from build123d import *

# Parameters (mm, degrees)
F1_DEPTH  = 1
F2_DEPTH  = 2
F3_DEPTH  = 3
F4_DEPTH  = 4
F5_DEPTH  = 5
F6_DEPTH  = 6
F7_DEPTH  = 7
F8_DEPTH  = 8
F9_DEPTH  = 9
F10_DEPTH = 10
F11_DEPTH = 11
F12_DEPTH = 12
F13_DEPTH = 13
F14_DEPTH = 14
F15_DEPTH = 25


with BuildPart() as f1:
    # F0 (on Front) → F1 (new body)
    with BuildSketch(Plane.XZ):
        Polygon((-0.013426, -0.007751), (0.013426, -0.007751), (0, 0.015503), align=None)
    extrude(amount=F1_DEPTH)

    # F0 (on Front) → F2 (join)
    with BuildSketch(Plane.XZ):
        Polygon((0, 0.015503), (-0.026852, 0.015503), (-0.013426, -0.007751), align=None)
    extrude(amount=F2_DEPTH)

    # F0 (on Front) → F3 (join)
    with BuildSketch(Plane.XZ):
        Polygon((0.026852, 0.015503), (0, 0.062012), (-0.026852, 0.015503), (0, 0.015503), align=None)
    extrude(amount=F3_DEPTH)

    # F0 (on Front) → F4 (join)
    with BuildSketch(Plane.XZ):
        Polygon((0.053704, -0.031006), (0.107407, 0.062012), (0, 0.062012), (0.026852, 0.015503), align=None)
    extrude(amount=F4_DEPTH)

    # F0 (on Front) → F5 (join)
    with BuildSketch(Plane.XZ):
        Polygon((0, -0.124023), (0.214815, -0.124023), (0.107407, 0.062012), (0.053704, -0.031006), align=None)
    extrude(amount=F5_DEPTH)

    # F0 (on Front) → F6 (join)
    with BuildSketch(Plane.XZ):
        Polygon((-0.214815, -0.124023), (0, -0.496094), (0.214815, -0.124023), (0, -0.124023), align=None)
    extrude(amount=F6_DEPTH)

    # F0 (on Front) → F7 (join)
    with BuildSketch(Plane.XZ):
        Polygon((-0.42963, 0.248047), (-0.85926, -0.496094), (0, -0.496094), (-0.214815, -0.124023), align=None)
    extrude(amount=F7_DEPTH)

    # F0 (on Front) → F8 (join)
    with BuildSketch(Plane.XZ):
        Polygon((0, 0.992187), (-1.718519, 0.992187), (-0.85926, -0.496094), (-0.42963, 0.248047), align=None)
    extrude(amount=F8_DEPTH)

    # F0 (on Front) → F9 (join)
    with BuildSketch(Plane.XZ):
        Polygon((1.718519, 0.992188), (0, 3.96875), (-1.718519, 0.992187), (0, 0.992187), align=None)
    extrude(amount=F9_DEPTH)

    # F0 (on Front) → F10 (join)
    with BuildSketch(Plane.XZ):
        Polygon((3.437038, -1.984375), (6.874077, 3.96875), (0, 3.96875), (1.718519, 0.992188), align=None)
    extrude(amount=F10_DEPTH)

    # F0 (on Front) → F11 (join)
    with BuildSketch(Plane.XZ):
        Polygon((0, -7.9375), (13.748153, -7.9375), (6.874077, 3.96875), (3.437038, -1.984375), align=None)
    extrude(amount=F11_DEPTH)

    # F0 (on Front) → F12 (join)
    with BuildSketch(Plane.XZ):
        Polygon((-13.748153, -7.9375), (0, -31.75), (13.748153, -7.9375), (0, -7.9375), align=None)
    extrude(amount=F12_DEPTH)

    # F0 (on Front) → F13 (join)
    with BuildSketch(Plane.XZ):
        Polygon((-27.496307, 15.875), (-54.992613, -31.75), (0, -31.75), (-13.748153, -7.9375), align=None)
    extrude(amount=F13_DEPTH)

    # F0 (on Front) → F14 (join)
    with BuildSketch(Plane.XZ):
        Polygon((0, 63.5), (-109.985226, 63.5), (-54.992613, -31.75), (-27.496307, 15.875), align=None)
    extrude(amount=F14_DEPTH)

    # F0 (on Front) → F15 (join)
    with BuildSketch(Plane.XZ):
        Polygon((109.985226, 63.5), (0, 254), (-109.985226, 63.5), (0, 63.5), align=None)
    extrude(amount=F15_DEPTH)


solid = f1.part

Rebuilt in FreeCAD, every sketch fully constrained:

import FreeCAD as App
import Part
import Sketcher
Q = App.Units.Quantity

doc = App.newDocument("Part")
body = doc.addObject("PartDesign::Body", "Body")

sketch1 = body.newObject("Sketcher::SketchObject", "Sketch")
sketch1.AttachmentSupport = (doc.getObject("XZ_Plane"), [""])
sketch1.MapMode = "FlatFace"
sketch1.addGeometry([
    Part.LineSegment(App.Vector(-0.013, -0.008, 0), App.Vector(0.013, -0.008, 0)),
    Part.LineSegment(App.Vector(0.013, -0.008, 0), App.Vector(0, 0.016, 0)),
    Part.LineSegment(App.Vector(0, 0.016, 0), App.Vector(-0.013, -0.008, 0)),
], False)
sketch1.addConstraint([
    Sketcher.Constraint("Coincident", 0, 2, 1, 1),
    Sketcher.Constraint("Coincident", 1, 2, 2, 1),
    Sketcher.Constraint("Coincident", 2, 2, 0, 1),
    Sketcher.Constraint("Horizontal", 0),
    Sketcher.Constraint("PointOnObject", 1, 2, -2),
    Sketcher.Constraint("Equal", 1, 2),
    Sketcher.Constraint("Distance", 1, 0.026852),
    Sketcher.Constraint("DistanceX", 0, 1, 0, 2, 0.026852),
    Sketcher.Constraint("DistanceY", 0, 2, -1, 1, 0.007751),
])
pad1 = body.newObject("PartDesign::Pad", "Pad")
pad1.Profile = sketch1
pad1.Length = 1

sketch2 = body.newObject("Sketcher::SketchObject", "Sketch001")
sketch2.AttachmentSupport = (doc.getObject("XZ_Plane"), [""])
sketch2.MapMode = "FlatFace"
sketch2.addGeometry([
    Part.LineSegment(App.Vector(0, 0.016, 0), App.Vector(-0.027, 0.016, 0)),
    Part.LineSegment(App.Vector(-0.027, 0.016, 0), App.Vector(-0.013, -0.008, 0)),
    Part.LineSegment(App.Vector(-0.013, -0.008, 0), App.Vector(0, 0.016, 0)),
], False)
sketch2.addConstraint([
    Sketcher.Constraint("Coincident", 0, 2, 1, 1),
    Sketcher.Constraint("Coincident", 1, 2, 2, 1),
    Sketcher.Constraint("Coincident", 2, 2, 0, 1),
    Sketcher.Constraint("Horizontal", 0),
    Sketcher.Constraint("PointOnObject", 2, 2, -2),
    Sketcher.Constraint("Equal", 1, 2),
    Sketcher.Constraint("Distance", 1, 0.026852),
    Sketcher.Constraint("DistanceX", 0, 2, 0, 1, 0.026852),
    Sketcher.Constraint("DistanceY", 1, 2, -1, 1, 0.007751),
])
pad2 = body.newObject("PartDesign::Pad", "Pad001")
pad2.Profile = sketch2
pad2.Length = 2

sketch3 = body.newObject("Sketcher::SketchObject", "Sketch002")
sketch3.AttachmentSupport = (doc.getObject("XZ_Plane"), [""])
sketch3.MapMode = "FlatFace"
sketch3.addGeometry([
    Part.LineSegment(App.Vector(0.03, 0.02, 0), App.Vector(0, 0.06, 0)),
    Part.LineSegment(App.Vector(0, 0.06, 0), App.Vector(-0.03, 0.02, 0)),
    Part.LineSegment(App.Vector(-0.03, 0.02, 0), App.Vector(0.03, 0.02, 0)),
], False)
sketch3.addConstraint([
    Sketcher.Constraint("Coincident", 0, 2, 1, 1),
    Sketcher.Constraint("Coincident", 1, 2, 2, 1),
    Sketcher.Constraint("Coincident", 2, 2, 0, 1),
    Sketcher.Constraint("Horizontal", 2),
    Sketcher.Constraint("PointOnObject", 0, 2, -2),
    Sketcher.Constraint("Equal", 0, 1),
    Sketcher.Constraint("Angle", 0, Q("120.000015 deg")),
    Sketcher.Constraint("DistanceX", 2, 1, 2, 2, 0.053704),
    Sketcher.Constraint("DistanceY", -1, 1, 0, 2, 0.062012),
])
pad3 = body.newObject("PartDesign::Pad", "Pad002")
pad3.Profile = sketch3
pad3.Length = 3

sketch4 = body.newObject("Sketcher::SketchObject", "Sketch003")
sketch4.AttachmentSupport = (doc.getObject("XZ_Plane"), [""])
sketch4.MapMode = "FlatFace"
sketch4.addGeometry([
    Part.LineSegment(App.Vector(0.05, -0.03, 0), App.Vector(0.11, 0.06, 0)),
    Part.LineSegment(App.Vector(0.11, 0.06, 0), App.Vector(0, 0.06, 0)),
    Part.LineSegment(App.Vector(0, 0.06, 0), App.Vector(0.05, -0.03, 0)),
], False)
sketch4.addConstraint([
    Sketcher.Constraint("Coincident", 0, 2, 1, 1),
    Sketcher.Constraint("Coincident", 1, 2, 2, 1),
    Sketcher.Constraint("Coincident", 2, 2, 0, 1),
    Sketcher.Constraint("Horizontal", 1),
    Sketcher.Constraint("PointOnObject", 1, 2, -2),
    Sketcher.Constraint("Equal", 0, 2),
    Sketcher.Constraint("Angle", 2, Q("-59.999985 deg")),
    Sketcher.Constraint("DistanceX", 1, 2, 1, 1, 0.107407),
    Sketcher.Constraint("DistanceY", -1, 1, 0, 2, 0.062012),
])
pad4 = body.newObject("PartDesign::Pad", "Pad003")
pad4.Profile = sketch4
pad4.Length = 4

sketch5 = body.newObject("Sketcher::SketchObject", "Sketch004")
sketch5.AttachmentSupport = (doc.getObject("XZ_Plane"), [""])
sketch5.MapMode = "FlatFace"
sketch5.addGeometry([
    Part.LineSegment(App.Vector(0, -0.12, 0), App.Vector(0.21, -0.12, 0)),
    Part.LineSegment(App.Vector(0.21, -0.12, 0), App.Vector(0.11, 0.06, 0)),
    Part.LineSegment(App.Vector(0.11, 0.06, 0), App.Vector(0.05, -0.03, 0)),
    Part.LineSegment(App.Vector(0.05, -0.03, 0), App.Vector(0, -0.12, 0)),
], False)
sketch5.addConstraint([
    Sketcher.Constraint("Coincident", 0, 2, 1, 1),
    Sketcher.Constraint("Coincident", 1, 2, 2, 1),
    Sketcher.Constraint("Coincident", 2, 2, 3, 1),
    Sketcher.Constraint("Coincident", 3, 2, 0, 1),
    Sketcher.Constraint("Horizontal", 0),
    Sketcher.Constraint("PointOnObject", 3, 2, -2),
    Sketcher.Constraint("Equal", 2, 3),
    Sketcher.Constraint("DistanceX", 0, 1, 0, 2, 0.214815),
    Sketcher.Constraint("DistanceY", -1, 1, 1, 2, 0.062012),
    Sketcher.Constraint("DistanceX", 2, 2, 0, 2, 0.161111),
    Sketcher.Constraint("Distance", 1, 0.214815),
    Sketcher.Constraint("Distance", 2, 0.107407),
])
pad5 = body.newObject("PartDesign::Pad", "Pad004")
pad5.Profile = sketch5
pad5.Length = 5

sketch6 = body.newObject("Sketcher::SketchObject", "Sketch005")
sketch6.AttachmentSupport = (doc.getObject("XZ_Plane"), [""])
sketch6.MapMode = "FlatFace"
sketch6.addGeometry([
    Part.LineSegment(App.Vector(-0.21, -0.12, 0), App.Vector(0, -0.5, 0)),
    Part.LineSegment(App.Vector(0, -0.5, 0), App.Vector(0.21, -0.12, 0)),
    Part.LineSegment(App.Vector(0.21, -0.12, 0), App.Vector(-0.21, -0.12, 0)),
], False)
sketch6.addConstraint([
    Sketcher.Constraint("Coincident", 0, 2, 1, 1),
    Sketcher.Constraint("Coincident", 1, 2, 2, 1),
    Sketcher.Constraint("Coincident", 2, 2, 0, 1),
    Sketcher.Constraint("Horizontal", 2),
    Sketcher.Constraint("PointOnObject", 0, 2, -2),
    Sketcher.Constraint("Equal", 0, 1),
    Sketcher.Constraint("DistanceX", 2, 2, 2, 1, 0.42963),
    Sketcher.Constraint("Distance", 0, 0.42963),
    Sketcher.Constraint("DistanceY", 0, 2, -1, 1, 0.496094),
])
pad6 = body.newObject("PartDesign::Pad", "Pad005")
pad6.Profile = sketch6
pad6.Length = 6

sketch7 = body.newObject("Sketcher::SketchObject", "Sketch006")
sketch7.AttachmentSupport = (doc.getObject("XZ_Plane"), [""])
sketch7.MapMode = "FlatFace"
sketch7.addGeometry([
    Part.LineSegment(App.Vector(-0.43, 0.25, 0), App.Vector(-0.86, -0.5, 0)),
    Part.LineSegment(App.Vector(-0.86, -0.5, 0), App.Vector(0, -0.5, 0)),
    Part.LineSegment(App.Vector(0, -0.5, 0), App.Vector(-0.21, -0.12, 0)),
    Part.LineSegment(App.Vector(-0.21, -0.12, 0), App.Vector(-0.43, 0.25, 0)),
], False)
sketch7.addConstraint([
    Sketcher.Constraint("Coincident", 0, 2, 1, 1),
    Sketcher.Constraint("Coincident", 1, 2, 2, 1),
    Sketcher.Constraint("Coincident", 2, 2, 3, 1),
    Sketcher.Constraint("Coincident", 3, 2, 0, 1),
    Sketcher.Constraint("Horizontal", 1),
    Sketcher.Constraint("PointOnObject", 1, 2, -2),
    Sketcher.Constraint("Parallel", 2, 3),
    Sketcher.Constraint("Equal", 2, 3),
    Sketcher.Constraint("Angle", 0, Q("-120 deg")),
    Sketcher.Constraint("DistanceX", 1, 1, 1, 2, 0.85926),
    Sketcher.Constraint("Distance", 0, 0.85926),
    Sketcher.Constraint("DistanceY", 0, 2, -1, 1, 0.496094),
])
pad7 = body.newObject("PartDesign::Pad", "Pad006")
pad7.Profile = sketch7
pad7.Length = 7

sketch8 = body.newObject("Sketcher::SketchObject", "Sketch007")
sketch8.AttachmentSupport = (doc.getObject("XZ_Plane"), [""])
sketch8.MapMode = "FlatFace"
sketch8.addGeometry([
    Part.LineSegment(App.Vector(0, 1, 0), App.Vector(-1.7, 1, 0)),
    Part.LineSegment(App.Vector(-1.7, 1, 0), App.Vector(-0.9, -0.5, 0)),
    Part.LineSegment(App.Vector(-0.9, -0.5, 0), App.Vector(-0.4, 0.2, 0)),
    Part.LineSegment(App.Vector(-0.4, 0.2, 0), App.Vector(0, 1, 0)),
], False)
sketch8.addConstraint([
    Sketcher.Constraint("Coincident", 0, 2, 1, 1),
    Sketcher.Constraint("Coincident", 1, 2, 2, 1),
    Sketcher.Constraint("Coincident", 2, 2, 3, 1),
    Sketcher.Constraint("Coincident", 3, 2, 0, 1),
    Sketcher.Constraint("Horizontal", 0),
    Sketcher.Constraint("PointOnObject", 3, 2, -2),
    Sketcher.Constraint("Parallel", 2, 3),
    Sketcher.Constraint("Equal", 2, 3),
    Sketcher.Constraint("Angle", 1, Q("-60.000013 deg")),
    Sketcher.Constraint("Angle", 2, Q("60 deg")),
    Sketcher.Constraint("DistanceX", 0, 2, 0, 1, 1.718519),
    Sketcher.Constraint("DistanceY", -1, 1, 0, 2, 0.992187),
])
pad8 = body.newObject("PartDesign::Pad", "Pad007")
pad8.Profile = sketch8
pad8.Length = 8

sketch9 = body.newObject("Sketcher::SketchObject", "Sketch008")
sketch9.AttachmentSupport = (doc.getObject("XZ_Plane"), [""])
sketch9.MapMode = "FlatFace"
sketch9.addGeometry([
    Part.LineSegment(App.Vector(1.7, 1, 0), App.Vector(0, 4, 0)),
    Part.LineSegment(App.Vector(0, 4, 0), App.Vector(-1.7, 1, 0)),
    Part.LineSegment(App.Vector(-1.7, 1, 0), App.Vector(0, 1, 0)),
    Part.LineSegment(App.Vector(0, 1, 0), App.Vector(1.7, 1, 0)),
], False)
sketch9.addConstraint([
    Sketcher.Constraint("Coincident", 0, 2, 1, 1),
    Sketcher.Constraint("Coincident", 1, 2, 2, 1),
    Sketcher.Constraint("Coincident", 2, 2, 3, 1),
    Sketcher.Constraint("Coincident", 3, 2, 0, 1),
    Sketcher.Constraint("Horizontal", 2),
    Sketcher.Constraint("Horizontal", 3),
    Sketcher.Constraint("PointOnObject", 0, 2, -2),
    Sketcher.Constraint("PointOnObject", 2, 2, -2),
    Sketcher.Constraint("Equal", 2, 3),
    Sketcher.Constraint("Angle", 0, Q("120.000002 deg")),
    Sketcher.Constraint("DistanceX", 2, 1, 2, 2, 1.718519),
    Sketcher.Constraint("DistanceY", -1, 1, 0, 2, 3.96875),
])
pad9 = body.newObject("PartDesign::Pad", "Pad008")
pad9.Profile = sketch9
pad9.Length = 9

sketch10 = body.newObject("Sketcher::SketchObject", "Sketch009")
sketch10.AttachmentSupport = (doc.getObject("XZ_Plane"), [""])
sketch10.MapMode = "FlatFace"
sketch10.addGeometry([
    Part.LineSegment(App.Vector(3.4, -2, 0), App.Vector(6.9, 4, 0)),
    Part.LineSegment(App.Vector(6.9, 4, 0), App.Vector(0, 4, 0)),
    Part.LineSegment(App.Vector(0, 4, 0), App.Vector(1.7, 1, 0)),
    Part.LineSegment(App.Vector(1.7, 1, 0), App.Vector(3.4, -2, 0)),
], False)
sketch10.addConstraint([
    Sketcher.Constraint("Coincident", 0, 2, 1, 1),
    Sketcher.Constraint("Coincident", 1, 2, 2, 1),
    Sketcher.Constraint("Coincident", 2, 2, 3, 1),
    Sketcher.Constraint("Coincident", 3, 2, 0, 1),
    Sketcher.Constraint("Horizontal", 1),
    Sketcher.Constraint("PointOnObject", 1, 2, -2),
    Sketcher.Constraint("Parallel", 2, 3),
    Sketcher.Constraint("Equal", 2, 3),
    Sketcher.Constraint("Angle", 0, Q("59.999995 deg")),
    Sketcher.Constraint("Angle", 2, Q("-59.999998 deg")),
    Sketcher.Constraint("Distance", 3, 3.437039),
    Sketcher.Constraint("DistanceY", -1, 1, 0, 2, 3.96875),
])
pad10 = body.newObject("PartDesign::Pad", "Pad009")
pad10.Profile = sketch10
pad10.Length = 10

sketch11 = body.newObject("Sketcher::SketchObject", "Sketch010")
sketch11.AttachmentSupport = (doc.getObject("XZ_Plane"), [""])
sketch11.MapMode = "FlatFace"
sketch11.addGeometry([
    Part.LineSegment(App.Vector(0, -8, 0), App.Vector(14, -8, 0)),
    Part.LineSegment(App.Vector(14, -8, 0), App.Vector(7, 4, 0)),
    Part.LineSegment(App.Vector(7, 4, 0), App.Vector(3, -2, 0)),
    Part.LineSegment(App.Vector(3, -2, 0), App.Vector(0, -8, 0)),
], False)
sketch11.addConstraint([
    Sketcher.Constraint("Coincident", 0, 2, 1, 1),
    Sketcher.Constraint("Coincident", 1, 2, 2, 1),
    Sketcher.Constraint("Coincident", 2, 2, 3, 1),
    Sketcher.Constraint("Coincident", 3, 2, 0, 1),
    Sketcher.Constraint("Horizontal", 0),
    Sketcher.Constraint("PointOnObject", 3, 2, -2),
    Sketcher.Constraint("Parallel", 2, 3),
    Sketcher.Constraint("Equal", 2, 3),
    Sketcher.Constraint("Angle", 1, Q("119.999998 deg")),
    Sketcher.Constraint("Angle", 2, Q("-120.000005 deg")),
    Sketcher.Constraint("DistanceY", 0, 2, -1, 1, 7.9375),
    Sketcher.Constraint("DistanceX", 0, 1, 0, 2, 13.748153),
])
pad11 = body.newObject("PartDesign::Pad", "Pad010")
pad11.Profile = sketch11
pad11.Length = 11

sketch12 = body.newObject("Sketcher::SketchObject", "Sketch011")
sketch12.AttachmentSupport = (doc.getObject("XZ_Plane"), [""])
sketch12.MapMode = "FlatFace"
sketch12.addGeometry([
    Part.LineSegment(App.Vector(-14, -8, 0), App.Vector(0, -32, 0)),
    Part.LineSegment(App.Vector(0, -32, 0), App.Vector(14, -8, 0)),
    Part.LineSegment(App.Vector(14, -8, 0), App.Vector(-14, -8, 0)),
], False)
sketch12.addConstraint([
    Sketcher.Constraint("Coincident", 0, 2, 1, 1),
    Sketcher.Constraint("Coincident", 1, 2, 2, 1),
    Sketcher.Constraint("Coincident", 2, 2, 0, 1),
    Sketcher.Constraint("Horizontal", 2),
    Sketcher.Constraint("PointOnObject", 0, 2, -2),
    Sketcher.Constraint("Equal", 0, 1),
    Sketcher.Constraint("Angle", 0, Q("-60.000001 deg")),
    Sketcher.Constraint("DistanceY", 0, 2, -1, 1, 31.75),
    Sketcher.Constraint("DistanceY", 1, 2, -1, 1, 7.9375),
])
pad12 = body.newObject("PartDesign::Pad", "Pad011")
pad12.Profile = sketch12
pad12.Length = 12

sketch13 = body.newObject("Sketcher::SketchObject", "Sketch012")
sketch13.AttachmentSupport = (doc.getObject("XZ_Plane"), [""])
sketch13.MapMode = "FlatFace"
sketch13.addGeometry([
    Part.LineSegment(App.Vector(-27, 16, 0), App.Vector(-55, -32, 0)),
    Part.LineSegment(App.Vector(-55, -32, 0), App.Vector(0, -32, 0)),
    Part.LineSegment(App.Vector(0, -32, 0), App.Vector(-14, -8, 0)),
    Part.LineSegment(App.Vector(-14, -8, 0), App.Vector(-27, 16, 0)),
], False)
sketch13.addConstraint([
    Sketcher.Constraint("Coincident", 0, 2, 1, 1),
    Sketcher.Constraint("Coincident", 1, 2, 2, 1),
    Sketcher.Constraint("Coincident", 2, 2, 3, 1),
    Sketcher.Constraint("Coincident", 3, 2, 0, 1),
    Sketcher.Constraint("Horizontal", 1),
    Sketcher.Constraint("PointOnObject", 1, 2, -2),
    Sketcher.Constraint("Parallel", 2, 3),
    Sketcher.Constraint("Equal", 2, 3),
    Sketcher.Constraint("Angle", 0, Q("-119.999999 deg")),
    Sketcher.Constraint("Angle", 2, Q("119.999999 deg")),
    Sketcher.Constraint("DistanceY", 0, 2, -1, 1, 31.75),
    Sketcher.Constraint("DistanceY", -1, 1, 3, 2, 15.875),
])
pad13 = body.newObject("PartDesign::Pad", "Pad012")
pad13.Profile = sketch13
pad13.Length = 13

sketch14 = body.newObject("Sketcher::SketchObject", "Sketch013")
sketch14.AttachmentSupport = (doc.getObject("XZ_Plane"), [""])
sketch14.MapMode = "FlatFace"
sketch14.addGeometry([
    Part.LineSegment(App.Vector(0, 64, 0), App.Vector(-110, 64, 0)),
    Part.LineSegment(App.Vector(-110, 64, 0), App.Vector(-55, -32, 0)),
    Part.LineSegment(App.Vector(-55, -32, 0), App.Vector(-27, 16, 0)),
    Part.LineSegment(App.Vector(-27, 16, 0), App.Vector(0, 64, 0)),
], False)
sketch14.addConstraint([
    Sketcher.Constraint("Coincident", 0, 2, 1, 1),
    Sketcher.Constraint("Coincident", 1, 2, 2, 1),
    Sketcher.Constraint("Coincident", 2, 2, 3, 1),
    Sketcher.Constraint("Coincident", 3, 2, 0, 1),
    Sketcher.Constraint("Horizontal", 0),
    Sketcher.Constraint("PointOnObject", 3, 2, -2),
    Sketcher.Constraint("Parallel", 2, 3),
    Sketcher.Constraint("Equal", 2, 3),
    Sketcher.Constraint("Angle", 1, Q("-60 deg")),
    Sketcher.Constraint("Angle", 2, Q("60.000001 deg")),
    Sketcher.Constraint("DistanceY", -1, 1, 0, 2, 63.5),
    Sketcher.Constraint("DistanceY", 1, 2, -1, 1, 31.75),
])
pad14 = body.newObject("PartDesign::Pad", "Pad013")
pad14.Profile = sketch14
pad14.Length = 14

sketch15 = body.newObject("Sketcher::SketchObject", "Sketch014")
sketch15.AttachmentSupport = (doc.getObject("XZ_Plane"), [""])
sketch15.MapMode = "FlatFace"
sketch15.addGeometry([
    Part.LineSegment(App.Vector(110, 64, 0), App.Vector(0, 254, 0)),
    Part.LineSegment(App.Vector(0, 254, 0), App.Vector(-110, 64, 0)),
    Part.LineSegment(App.Vector(-110, 64, 0), App.Vector(110, 64, 0)),
], False)
sketch15.addConstraint([
    Sketcher.Constraint("Coincident", 0, 2, 1, 1),
    Sketcher.Constraint("Coincident", 1, 2, 2, 1),
    Sketcher.Constraint("Coincident", 2, 2, 0, 1),
    Sketcher.Constraint("Horizontal", 2),
    Sketcher.Constraint("PointOnObject", 0, 2, -2),
    Sketcher.Constraint("Equal", 0, 1),
    Sketcher.Constraint("Angle", 0, Q("120 deg")),
    Sketcher.Constraint("DistanceY", -1, 1, 0, 2, 254.0),
    Sketcher.Constraint("DistanceY", -1, 1, 1, 2, 63.5),
])
pad15 = body.newObject("PartDesign::Pad", "Pad014")
pad15.Profile = sketch15
pad15.Length = 25

doc.recompute()
